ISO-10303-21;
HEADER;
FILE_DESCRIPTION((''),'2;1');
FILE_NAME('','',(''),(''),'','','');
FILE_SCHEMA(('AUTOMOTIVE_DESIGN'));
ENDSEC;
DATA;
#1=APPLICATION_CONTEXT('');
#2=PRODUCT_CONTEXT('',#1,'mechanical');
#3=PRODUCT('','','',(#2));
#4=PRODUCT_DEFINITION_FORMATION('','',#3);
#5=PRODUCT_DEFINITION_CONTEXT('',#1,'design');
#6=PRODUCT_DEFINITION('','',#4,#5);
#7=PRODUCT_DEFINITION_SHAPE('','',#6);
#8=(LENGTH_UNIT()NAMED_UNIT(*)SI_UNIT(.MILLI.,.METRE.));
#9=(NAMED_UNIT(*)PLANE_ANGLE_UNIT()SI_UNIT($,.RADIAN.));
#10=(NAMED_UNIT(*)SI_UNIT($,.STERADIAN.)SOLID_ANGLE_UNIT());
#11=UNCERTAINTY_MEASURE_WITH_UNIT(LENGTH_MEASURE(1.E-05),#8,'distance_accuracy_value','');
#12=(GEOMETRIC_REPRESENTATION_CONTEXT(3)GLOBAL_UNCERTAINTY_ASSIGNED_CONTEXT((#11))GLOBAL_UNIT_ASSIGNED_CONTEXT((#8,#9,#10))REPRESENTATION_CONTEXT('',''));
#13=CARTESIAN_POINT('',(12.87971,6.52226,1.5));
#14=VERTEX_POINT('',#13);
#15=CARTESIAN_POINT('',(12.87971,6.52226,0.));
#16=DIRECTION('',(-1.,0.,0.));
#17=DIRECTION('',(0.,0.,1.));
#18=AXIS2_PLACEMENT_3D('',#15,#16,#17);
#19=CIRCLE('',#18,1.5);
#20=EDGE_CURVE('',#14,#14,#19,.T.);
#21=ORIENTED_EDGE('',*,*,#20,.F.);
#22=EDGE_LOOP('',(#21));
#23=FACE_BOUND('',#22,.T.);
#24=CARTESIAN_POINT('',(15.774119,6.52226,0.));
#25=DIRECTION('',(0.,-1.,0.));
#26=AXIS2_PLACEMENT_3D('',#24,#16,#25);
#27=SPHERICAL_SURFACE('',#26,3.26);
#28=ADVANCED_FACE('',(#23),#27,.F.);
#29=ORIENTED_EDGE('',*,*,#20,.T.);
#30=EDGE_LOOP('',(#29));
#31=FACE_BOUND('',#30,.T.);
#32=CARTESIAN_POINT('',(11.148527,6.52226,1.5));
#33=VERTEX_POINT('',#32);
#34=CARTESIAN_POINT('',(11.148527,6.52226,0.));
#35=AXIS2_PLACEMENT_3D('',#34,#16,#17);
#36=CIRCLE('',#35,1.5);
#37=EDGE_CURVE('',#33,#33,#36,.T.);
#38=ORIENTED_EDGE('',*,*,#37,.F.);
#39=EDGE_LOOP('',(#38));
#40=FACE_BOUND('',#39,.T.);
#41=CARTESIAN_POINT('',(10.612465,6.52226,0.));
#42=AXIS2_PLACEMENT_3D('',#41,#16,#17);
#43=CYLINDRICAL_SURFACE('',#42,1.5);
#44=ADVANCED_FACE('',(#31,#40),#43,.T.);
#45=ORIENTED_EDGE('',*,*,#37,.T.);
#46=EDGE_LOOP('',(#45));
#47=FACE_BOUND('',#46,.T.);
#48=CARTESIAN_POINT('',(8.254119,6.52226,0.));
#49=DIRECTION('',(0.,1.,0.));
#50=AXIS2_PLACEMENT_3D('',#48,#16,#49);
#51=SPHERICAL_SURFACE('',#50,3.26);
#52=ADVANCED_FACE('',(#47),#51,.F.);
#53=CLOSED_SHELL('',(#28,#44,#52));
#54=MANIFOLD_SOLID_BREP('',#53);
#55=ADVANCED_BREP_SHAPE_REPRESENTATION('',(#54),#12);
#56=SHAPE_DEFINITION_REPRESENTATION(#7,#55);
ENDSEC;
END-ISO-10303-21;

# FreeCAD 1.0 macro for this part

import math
import FreeCAD as App
import Part
import Sketcher

doc = App.newDocument("Part")
body = doc.addObject("PartDesign::Body", "Body")

sketch1 = body.newObject("Sketcher::SketchObject", "Sketch")
sketch1.AttachmentSupport = (doc.getObject("XY_Plane"), [""])
sketch1.MapMode = "FlatFace"
sketch1.addGeometry([
    Part.LineSegment(App.Vector(11.5, 6.5, 0), App.Vector(12.5, 6.5, 0)),
    Part.ArcOfCircle(Part.Circle(App.Vector(15.8, 6.5, 0), App.Vector(0, 0, 1), 3.3), math.radians(153), math.radians(180)),
    Part.LineSegment(App.Vector(12.9, 8, 0), App.Vector(11.1, 8, 0)),
    Part.ArcOfCircle(Part.Circle(App.Vector(8.3, 6.5, 0), App.Vector(0, 0, 1), 3.3), math.radians(0), math.radians(27)),
], False)
sketch1.addGeometry(Part.LineSegment(App.Vector(8.3, 6.5, 0), App.Vector(15.8, 6.5, 0)), True)
sketch1.addConstraint([
    Sketcher.Constraint("Coincident", 0, 2, 1, 2),
    Sketcher.Constraint("Coincident", 1, 1, 2, 1),
    Sketcher.Constraint("Coincident", 2, 2, 3, 2),
    Sketcher.Constraint("Coincident", 3, 1, 0, 1),
    Sketcher.Constraint("Horizontal", 0),
    Sketcher.Constraint("Horizontal", 2),
    Sketcher.Constraint("Horizontal", 4),
    Sketcher.Constraint("Coincident", 4, 1, 3, 3),
    Sketcher.Constraint("Coincident", 4, 2, 1, 3),
    Sketcher.Constraint("Equal", 1, 3),
    Sketcher.Constraint("Horizontal", 3, 3, 0, 2),
    Sketcher.Constraint("DistanceX", 0, 1, 0, 2, 1.0),
    Sketcher.Constraint("Radius", 1, 3.26),
    Sketcher.Constraint("DistanceY", 0, 2, 1, 1, 1.5),
    Sketcher.Constraint("DistanceX", -1, 1, 1, 3, 15.774119),
    Sketcher.Constraint("DistanceY", -1, 1, 1, 3, 6.52226),
])
revolution = body.newObject("PartDesign::Revolution", "Revolution")
revolution.Profile = sketch1
revolution.ReferenceAxis = (sketch1, ["Axis0"])
revolution.Angle = 360

doc.recompute()
